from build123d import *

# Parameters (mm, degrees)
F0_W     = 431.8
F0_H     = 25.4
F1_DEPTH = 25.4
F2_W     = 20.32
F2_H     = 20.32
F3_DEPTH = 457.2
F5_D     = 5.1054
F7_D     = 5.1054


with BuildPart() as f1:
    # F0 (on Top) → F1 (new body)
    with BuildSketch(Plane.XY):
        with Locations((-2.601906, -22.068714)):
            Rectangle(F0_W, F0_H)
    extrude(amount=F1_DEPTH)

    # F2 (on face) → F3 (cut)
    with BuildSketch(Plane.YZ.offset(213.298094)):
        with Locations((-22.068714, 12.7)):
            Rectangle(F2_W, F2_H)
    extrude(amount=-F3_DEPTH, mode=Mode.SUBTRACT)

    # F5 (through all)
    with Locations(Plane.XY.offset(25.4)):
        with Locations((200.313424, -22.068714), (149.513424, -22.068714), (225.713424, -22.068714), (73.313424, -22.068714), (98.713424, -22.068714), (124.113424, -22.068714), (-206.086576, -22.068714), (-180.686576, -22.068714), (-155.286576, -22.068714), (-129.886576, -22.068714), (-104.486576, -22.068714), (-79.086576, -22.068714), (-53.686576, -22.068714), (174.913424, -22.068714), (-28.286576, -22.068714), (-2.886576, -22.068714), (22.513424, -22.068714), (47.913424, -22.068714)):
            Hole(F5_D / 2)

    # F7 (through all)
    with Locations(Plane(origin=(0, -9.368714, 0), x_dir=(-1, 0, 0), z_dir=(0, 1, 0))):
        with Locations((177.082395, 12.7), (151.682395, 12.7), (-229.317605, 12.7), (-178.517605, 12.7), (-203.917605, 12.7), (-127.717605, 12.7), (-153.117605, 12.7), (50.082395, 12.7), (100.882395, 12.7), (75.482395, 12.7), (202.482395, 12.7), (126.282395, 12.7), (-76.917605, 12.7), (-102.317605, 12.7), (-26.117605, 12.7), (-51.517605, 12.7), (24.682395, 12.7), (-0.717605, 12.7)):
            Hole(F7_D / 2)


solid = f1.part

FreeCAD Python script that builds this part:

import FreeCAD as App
import Part
import Sketcher
from FreeCAD import Vector
Q = App.Units.Quantity

doc = App.newDocument("Part")
body = doc.addObject("PartDesign::Body", "Body")

# Sketch on XY plane
sketch1 = body.newObject("Sketcher::SketchObject", "Sketch")
sketch1.AttachmentSupport = (doc.getObject("XY_Plane"), [""])
sketch1.MapMode = "FlatFace"
sketch1.addGeometry([
    Part.LineSegment(Vector(-219, -9, 0), Vector(-219, -35, 0)),
    Part.LineSegment(Vector(-219, -35, 0), Vector(213, -35, 0)),
    Part.LineSegment(Vector(213, -35, 0), Vector(213, -9, 0)),
    Part.LineSegment(Vector(213, -9, 0), Vector(-219, -9, 0)),
], False)
sketch1.addConstraint([
    Sketcher.Constraint("Coincident", 0, 2, 1, 1),
    Sketcher.Constraint("Coincident", 1, 2, 2, 1),
    Sketcher.Constraint("Coincident", 2, 2, 3, 1),
    Sketcher.Constraint("Coincident", 3, 2, 0, 1),
    Sketcher.Constraint("Vertical", 0),
    Sketcher.Constraint("Horizontal", 1),
    Sketcher.Constraint("Vertical", 2),
    Sketcher.Constraint("Horizontal", 3),
    Sketcher.Constraint("DistanceX", 1, 1, 1, 2, Q("17 in")),
    Sketcher.Constraint("DistanceY", 0, 2, 0, 1, Q("1 in")),
    Sketcher.Constraint("DistanceX", 0, 2, -1, 1, Q("218.501906 mm")),
    Sketcher.Constraint("DistanceY", 0, 2, -1, 1, Q("34.768714 mm")),
])
pad1 = body.newObject("PartDesign::Pad", "Pad")
pad1.Profile = sketch1
pad1.Length = Q("1 in")

# Sketch on YZ plane
sketch2 = body.newObject("Sketcher::SketchObject", "Sketch001")
sketch2.AttachmentSupport = (doc.getObject("YZ_Plane"), [""])
sketch2.MapMode = "FlatFace"
sketch2.AttachmentOffset = App.Placement(Vector(0, 0, 213.298094), App.Rotation())
sketch2.addGeometry([
    Part.LineSegment(Vector(-32, 23, 0), Vector(-32, 3, 0)),
    Part.LineSegment(Vector(-32, 3, 0), Vector(-12, 3, 0)),
    Part.LineSegment(Vector(-12, 3, 0), Vector(-12, 23, 0)),
    Part.LineSegment(Vector(-12, 23, 0), Vector(-32, 23, 0)),
], False)
sketch2.addConstraint([
    Sketcher.Constraint("Coincident", 0, 2, 1, 1),
    Sketcher.Constraint("Coincident", 1, 2, 2, 1),
    Sketcher.Constraint("Coincident", 2, 2, 3, 1),
    Sketcher.Constraint("Coincident", 3, 2, 0, 1),
    Sketcher.Constraint("Vertical", 0),
    Sketcher.Constraint("Horizontal", 1),
    Sketcher.Constraint("Vertical", 2),
    Sketcher.Constraint("Horizontal", 3),
    Sketcher.Constraint("Equal", 3, 0),
    Sketcher.Constraint("DistanceX", 1, 1, 1, 2, Q("0.8 in")),
    Sketcher.Constraint("DistanceY", -1, 1, 0, 2, Q("0.1 in")),
    Sketcher.Constraint("DistanceX", 0, 2, -1, 1, Q("32.228714 mm")),
])
pocket1 = body.newObject("PartDesign::Pocket", "Pocket")
pocket1.Profile = sketch2
pocket1.Length = Q("18 in")

# Sketch on XY plane
sketch3 = body.newObject("Sketcher::SketchObject", "Sketch002")
sketch3.AttachmentSupport = (doc.getObject("XY_Plane"), [""])
sketch3.MapMode = "FlatFace"
sketch3.AttachmentOffset = App.Placement(Vector(0, 0, 1 * 25.4), App.Rotation())
sketch3.addGeometry([
    Part.Circle(Vector(200.3, -22.1, 0), Vector(0, 0, 1), 2.6),  # 0
    Part.Circle(Vector(149.5, -22.1, 0), Vector(0, 0, 1), 2.6),  # 1
    Part.Circle(Vector(225.7, -22.1, 0), Vector(0, 0, 1), 2.6),  # 2
    Part.Circle(Vector(73.3, -22.1, 0), Vector(0, 0, 1), 2.6),  # 3
    Part.Circle(Vector(98.7, -22.1, 0), Vector(0, 0, 1), 2.6),  # 4
    Part.Circle(Vector(124.1, -22.1, 0), Vector(0, 0, 1), 2.6),  # 5
    Part.Circle(Vector(-206.1, -22.1, 0), Vector(0, 0, 1), 2.6),  # 6
    Part.Circle(Vector(-180.7, -22.1, 0), Vector(0, 0, 1), 2.6),  # 7
    Part.Circle(Vector(-155.3, -22.1, 0), Vector(0, 0, 1), 2.6),  # 8
    Part.Circle(Vector(-129.9, -22.1, 0), Vector(0, 0, 1), 2.6),  # 9
    Part.Circle(Vector(-104.5, -22.1, 0), Vector(0, 0, 1), 2.6),  # 10
    Part.Circle(Vector(-79.1, -22.1, 0), Vector(0, 0, 1), 2.6),  # 11
    Part.Circle(Vector(-53.7, -22.1, 0), Vector(0, 0, 1), 2.6),  # 12
    Part.Circle(Vector(174.9, -22.1, 0), Vector(0, 0, 1), 2.6),  # 13
    Part.Circle(Vector(-28.3, -22.1, 0), Vector(0, 0, 1), 2.6),  # 14
    Part.Circle(Vector(-2.9, -22.1, 0), Vector(0, 0, 1), 2.6),  # 15
    Part.Circle(Vector(22.5, -22.1, 0), Vector(0, 0, 1), 2.6),  # 16
    Part.Circle(Vector(47.9, -22.1, 0), Vector(0, 0, 1), 2.6),  # 17
], False)
sketch3.addConstraint([
    Sketcher.Constraint("Equal", 0, 1),
    Sketcher.Constraint("Equal", 1, 2),
    Sketcher.Constraint("Equal", 2, 3),
    Sketcher.Constraint("Equal", 3, 4),
    Sketcher.Constraint("Equal", 4, 5),
    Sketcher.Constraint("Equal", 5, 6),
    Sketcher.Constraint("Equal", 6, 7),
    Sketcher.Constraint("Equal", 7, 8),
    Sketcher.Constraint("Equal", 8, 9),
    Sketcher.Constraint("Equal", 9, 10),
    Sketcher.Constraint("Equal", 10, 11),
    Sketcher.Constraint("Equal", 11, 12),
    Sketcher.Constraint("Equal", 12, 13),
    Sketcher.Constraint("Equal", 13, 14),
    Sketcher.Constraint("Equal", 14, 15),
    Sketcher.Constraint("Equal", 15, 16),
    Sketcher.Constraint("Equal", 16, 17),
    Sketcher.Constraint("Horizontal", 0, 3, 1, 3),
    Sketcher.Constraint("Horizontal", 1, 3, 2, 3),
    Sketcher.Constraint("Horizontal", 2, 3, 3, 3),
    Sketcher.Constraint("Horizontal", 3, 3, 4, 3),
    Sketcher.Constraint("Horizontal", 4, 3, 5, 3),
    Sketcher.Constraint("Horizontal", 5, 3, 6, 3),
    Sketcher.Constraint("Horizontal", 6, 3, 7, 3),
    Sketcher.Constraint("Horizontal", 7, 3, 8, 3),
    Sketcher.Constraint("Horizontal", 8, 3, 9, 3),
    Sketcher.Constraint("Horizontal", 9, 3, 10, 3),
    Sketcher.Constraint("Horizontal", 10, 3, 11, 3),
    Sketcher.Constraint("Horizontal", 11, 3, 12, 3),
    Sketcher.Constraint("Horizontal", 12, 3, 13, 3),
    Sketcher.Constraint("Horizontal", 13, 3, 14, 3),
    Sketcher.Constraint("Horizontal", 14, 3, 15, 3),
    Sketcher.Constraint("Horizontal", 15, 3, 16, 3),
    Sketcher.Constraint("Horizontal", 16, 3, 17, 3),
    Sketcher.Constraint("Diameter", 0, Q("0.201 in")),
    Sketcher.Constraint("DistanceX", 1, 3, 0, 3, Q("2 in")),
    Sketcher.Constraint("DistanceX", 0, 3, 2, 3, Q("1 in")),
    Sketcher.Constraint("DistanceX", 3, 3, 1, 3, Q("3 in")),
    Sketcher.Constraint("DistanceX", 3, 3, 4, 3, Q("1 in")),
    Sketcher.Constraint("DistanceX", 5, 3, 1, 3, Q("1 in")),
    Sketcher.Constraint("DistanceX", 6, 3, 3, 3, Q("11 in")),
    Sketcher.Constraint("DistanceX", 6, 3, 7, 3, Q("1 in")),
    Sketcher.Constraint("DistanceX", 7, 3, 8, 3, Q("1 in")),
    Sketcher.Constraint("DistanceX", 8, 3, 9, 3, Q("1 in")),
    Sketcher.Constraint("DistanceX", 9, 3, 10, 3, Q("1 in")),
    Sketcher.Constraint("DistanceX", 10, 3, 11, 3, Q("1 in")),
    Sketcher.Constraint("DistanceX", 11, 3, 12, 3, Q("1 in")),
    Sketcher.Constraint("DistanceX", 13, 3, 0, 3, Q("1 in")),
    Sketcher.Constraint("DistanceX", 12, 3, 14, 3, Q("1 in")),
    Sketcher.Constraint("DistanceX", 14, 3, 15, 3, Q("1 in")),
    Sketcher.Constraint("DistanceX", 15, 3, 16, 3, Q("1 in")),
    Sketcher.Constraint("DistanceX", 17, 3, 3, 3, Q("1 in")),
    Sketcher.Constraint("DistanceX", -1, 1, 0, 3, Q("200.313424 mm")),
    Sketcher.Constraint("DistanceY", 0, 3, -1, 1, Q("22.068714 mm")),
])
doc.recompute()
hole = body.newObject("PartDesign::Hole", "Hole")
hole.Profile = sketch3
hole.ThreadType = "None"
hole.Diameter = Q("0.201 in")
hole.DepthType = "ThroughAll"

# Sketch on XZ plane
sketch4 = body.newObject("Sketcher::SketchObject", "Sketch003")
sketch4.AttachmentSupport = (doc.getObject("XZ_Plane"), [""])
sketch4.MapMode = "FlatFace"
sketch4.AttachmentOffset = App.Placement(Vector(0, 0, 9.368714), App.Rotation())
sketch4.addGeometry([
    Part.Circle(Vector(-177.1, 12.7, 0), Vector(0, 0, 1), 2.6),  # 0
    Part.Circle(Vector(-151.7, 12.7, 0), Vector(0, 0, 1), 2.6),  # 1
    Part.Circle(Vector(229.3, 12.7, 0), Vector(0, 0, 1), 2.6),  # 2
    Part.Circle(Vector(178.5, 12.7, 0), Vector(0, 0, 1), 2.6),  # 3
    Part.Circle(Vector(203.9, 12.7, 0), Vector(0, 0, 1), 2.6),  # 4
    Part.Circle(Vector(127.7, 12.7, 0), Vector(0, 0, 1), 2.6),  # 5
    Part.Circle(Vector(153.1, 12.7, 0), Vector(0, 0, 1), 2.6),  # 6
    Part.Circle(Vector(-50.1, 12.7, 0), Vector(0, 0, 1), 2.6),  # 7
    Part.Circle(Vector(-100.9, 12.7, 0), Vector(0, 0, 1), 2.6),  # 8
    Part.Circle(Vector(-75.5, 12.7, 0), Vector(0, 0, 1), 2.6),  # 9
    Part.Circle(Vector(-202.5, 12.7, 0), Vector(0, 0, 1), 2.6),  # 10
    Part.Circle(Vector(-126.3, 12.7, 0), Vector(0, 0, 1), 2.6),  # 11
    Part.Circle(Vector(76.9, 12.7, 0), Vector(0, 0, 1), 2.6),  # 12
    Part.Circle(Vector(102.3, 12.7, 0), Vector(0, 0, 1), 2.6),  # 13
    Part.Circle(Vector(26.1, 12.7, 0), Vector(0, 0, 1), 2.6),  # 14
    Part.Circle(Vector(51.5, 12.7, 0), Vector(0, 0, 1), 2.6),  # 15
    Part.Circle(Vector(-24.7, 12.7, 0), Vector(0, 0, 1), 2.6),  # 16
    Part.Circle(Vector(0.7, 12.7, 0), Vector(0, 0, 1), 2.6),  # 17
], False)
sketch4.addConstraint([
    Sketcher.Constraint("Equal", 0, 1),
    Sketcher.Constraint("Equal", 1, 2),
    Sketcher.Constraint("Equal", 2, 3),
    Sketcher.Constraint("Equal", 3, 4),
    Sketcher.Constraint("Equal", 4, 5),
    Sketcher.Constraint("Equal", 5, 6),
    Sketcher.Constraint("Equal", 6, 7),
    Sketcher.Constraint("Equal", 7, 8),
    Sketcher.Constraint("Equal", 8, 9),
    Sketcher.Constraint("Equal", 9, 10),
    Sketcher.Constraint("Equal", 10, 11),
    Sketcher.Constraint("Equal", 11, 12),
    Sketcher.Constraint("Equal", 12, 13),
    Sketcher.Constraint("Equal", 13, 14),
    Sketcher.Constraint("Equal", 14, 15),
    Sketcher.Constraint("Equal", 15, 16),
    Sketcher.Constraint("Equal", 16, 17),
    Sketcher.Constraint("Horizontal", 0, 3, 1, 3),
    Sketcher.Constraint("Horizontal", 1, 3, 2, 3),
    Sketcher.Constraint("Horizontal", 2, 3, 3, 3),
    Sketcher.Constraint("Horizontal", 3, 3, 4, 3),
    Sketcher.Constraint("Horizontal", 4, 3, 5, 3),
    Sketcher.Constraint("Horizontal", 5, 3, 6, 3),
    Sketcher.Constraint("Horizontal", 6, 3, 7, 3),
    Sketcher.Constraint("Horizontal", 7, 3, 8, 3),
    Sketcher.Constraint("Horizontal", 8, 3, 9, 3),
    Sketcher.Constraint("Horizontal", 9, 3, 10, 3),
    Sketcher.Constraint("Horizontal", 10, 3, 11, 3),
    Sketcher.Constraint("Horizontal", 11, 3, 12, 3),
    Sketcher.Constraint("Horizontal", 12, 3, 13, 3),
    Sketcher.Constraint("Horizontal", 13, 3, 14, 3),
    Sketcher.Constraint("Horizontal", 14, 3, 15, 3),
    Sketcher.Constraint("Horizontal", 15, 3, 16, 3),
    Sketcher.Constraint("Horizontal", 16, 3, 17, 3),
    Sketcher.Constraint("Diameter", 0, Q("0.201 in")),
    Sketcher.Constraint("DistanceX", 0, 3, 1, 3, Q("1 in")),
    Sketcher.Constraint("DistanceX", 1, 3, 2, 3, Q("15 in")),
    Sketcher.Constraint("DistanceX", 3, 3, 2, 3, Q("2 in")),
    Sketcher.Constraint("DistanceX", 4, 3, 2, 3, Q("1 in")),
    Sketcher.Constraint("DistanceX", 5, 3, 3, 3, Q("2 in")),
    Sketcher.Constraint("DistanceX", 5, 3, 6, 3, Q("1 in")),
    Sketcher.Constraint("DistanceX", 1, 3, 7, 3, Q("4 in")),
    Sketcher.Constraint("DistanceX", 8, 3, 7, 3, Q("2 in")),
    Sketcher.Constraint("DistanceX", 9, 3, 7, 3, Q("1 in")),
    Sketcher.Constraint("DistanceX", 10, 3, 0, 3, Q("1 in")),
    Sketcher.Constraint("DistanceX", 11, 3, 8, 3, Q("1 in")),
    Sketcher.Constraint("DistanceX", 12, 3, 5, 3, Q("2 in")),
    Sketcher.Constraint("DistanceX", 13, 3, 5, 3, Q("1 in")),
    Sketcher.Constraint("DistanceX", 14, 3, 12, 3, Q("2 in")),
    Sketcher.Constraint("DistanceX", 15, 3, 12, 3, Q("1 in")),
    Sketcher.Constraint("DistanceX", 7, 3, 16, 3, Q("1 in")),
    Sketcher.Constraint("DistanceX", 16, 3, 17, 3, Q("1 in")),
    Sketcher.Constraint("DistanceY", -1, 1, 0, 3, Q("0.5 in")),
    Sketcher.Constraint("DistanceX", 0, 3, -1, 1, Q("177.082395 mm")),
])
doc.recompute()
hole2 = body.newObject("PartDesign::Hole", "Hole001")
hole2.Profile = sketch4
hole2.ThreadType = "None"
hole2.Diameter = Q("0.201 in")
hole2.DepthType = "ThroughAll"
hole2.Reversed = True

doc.recompute()
